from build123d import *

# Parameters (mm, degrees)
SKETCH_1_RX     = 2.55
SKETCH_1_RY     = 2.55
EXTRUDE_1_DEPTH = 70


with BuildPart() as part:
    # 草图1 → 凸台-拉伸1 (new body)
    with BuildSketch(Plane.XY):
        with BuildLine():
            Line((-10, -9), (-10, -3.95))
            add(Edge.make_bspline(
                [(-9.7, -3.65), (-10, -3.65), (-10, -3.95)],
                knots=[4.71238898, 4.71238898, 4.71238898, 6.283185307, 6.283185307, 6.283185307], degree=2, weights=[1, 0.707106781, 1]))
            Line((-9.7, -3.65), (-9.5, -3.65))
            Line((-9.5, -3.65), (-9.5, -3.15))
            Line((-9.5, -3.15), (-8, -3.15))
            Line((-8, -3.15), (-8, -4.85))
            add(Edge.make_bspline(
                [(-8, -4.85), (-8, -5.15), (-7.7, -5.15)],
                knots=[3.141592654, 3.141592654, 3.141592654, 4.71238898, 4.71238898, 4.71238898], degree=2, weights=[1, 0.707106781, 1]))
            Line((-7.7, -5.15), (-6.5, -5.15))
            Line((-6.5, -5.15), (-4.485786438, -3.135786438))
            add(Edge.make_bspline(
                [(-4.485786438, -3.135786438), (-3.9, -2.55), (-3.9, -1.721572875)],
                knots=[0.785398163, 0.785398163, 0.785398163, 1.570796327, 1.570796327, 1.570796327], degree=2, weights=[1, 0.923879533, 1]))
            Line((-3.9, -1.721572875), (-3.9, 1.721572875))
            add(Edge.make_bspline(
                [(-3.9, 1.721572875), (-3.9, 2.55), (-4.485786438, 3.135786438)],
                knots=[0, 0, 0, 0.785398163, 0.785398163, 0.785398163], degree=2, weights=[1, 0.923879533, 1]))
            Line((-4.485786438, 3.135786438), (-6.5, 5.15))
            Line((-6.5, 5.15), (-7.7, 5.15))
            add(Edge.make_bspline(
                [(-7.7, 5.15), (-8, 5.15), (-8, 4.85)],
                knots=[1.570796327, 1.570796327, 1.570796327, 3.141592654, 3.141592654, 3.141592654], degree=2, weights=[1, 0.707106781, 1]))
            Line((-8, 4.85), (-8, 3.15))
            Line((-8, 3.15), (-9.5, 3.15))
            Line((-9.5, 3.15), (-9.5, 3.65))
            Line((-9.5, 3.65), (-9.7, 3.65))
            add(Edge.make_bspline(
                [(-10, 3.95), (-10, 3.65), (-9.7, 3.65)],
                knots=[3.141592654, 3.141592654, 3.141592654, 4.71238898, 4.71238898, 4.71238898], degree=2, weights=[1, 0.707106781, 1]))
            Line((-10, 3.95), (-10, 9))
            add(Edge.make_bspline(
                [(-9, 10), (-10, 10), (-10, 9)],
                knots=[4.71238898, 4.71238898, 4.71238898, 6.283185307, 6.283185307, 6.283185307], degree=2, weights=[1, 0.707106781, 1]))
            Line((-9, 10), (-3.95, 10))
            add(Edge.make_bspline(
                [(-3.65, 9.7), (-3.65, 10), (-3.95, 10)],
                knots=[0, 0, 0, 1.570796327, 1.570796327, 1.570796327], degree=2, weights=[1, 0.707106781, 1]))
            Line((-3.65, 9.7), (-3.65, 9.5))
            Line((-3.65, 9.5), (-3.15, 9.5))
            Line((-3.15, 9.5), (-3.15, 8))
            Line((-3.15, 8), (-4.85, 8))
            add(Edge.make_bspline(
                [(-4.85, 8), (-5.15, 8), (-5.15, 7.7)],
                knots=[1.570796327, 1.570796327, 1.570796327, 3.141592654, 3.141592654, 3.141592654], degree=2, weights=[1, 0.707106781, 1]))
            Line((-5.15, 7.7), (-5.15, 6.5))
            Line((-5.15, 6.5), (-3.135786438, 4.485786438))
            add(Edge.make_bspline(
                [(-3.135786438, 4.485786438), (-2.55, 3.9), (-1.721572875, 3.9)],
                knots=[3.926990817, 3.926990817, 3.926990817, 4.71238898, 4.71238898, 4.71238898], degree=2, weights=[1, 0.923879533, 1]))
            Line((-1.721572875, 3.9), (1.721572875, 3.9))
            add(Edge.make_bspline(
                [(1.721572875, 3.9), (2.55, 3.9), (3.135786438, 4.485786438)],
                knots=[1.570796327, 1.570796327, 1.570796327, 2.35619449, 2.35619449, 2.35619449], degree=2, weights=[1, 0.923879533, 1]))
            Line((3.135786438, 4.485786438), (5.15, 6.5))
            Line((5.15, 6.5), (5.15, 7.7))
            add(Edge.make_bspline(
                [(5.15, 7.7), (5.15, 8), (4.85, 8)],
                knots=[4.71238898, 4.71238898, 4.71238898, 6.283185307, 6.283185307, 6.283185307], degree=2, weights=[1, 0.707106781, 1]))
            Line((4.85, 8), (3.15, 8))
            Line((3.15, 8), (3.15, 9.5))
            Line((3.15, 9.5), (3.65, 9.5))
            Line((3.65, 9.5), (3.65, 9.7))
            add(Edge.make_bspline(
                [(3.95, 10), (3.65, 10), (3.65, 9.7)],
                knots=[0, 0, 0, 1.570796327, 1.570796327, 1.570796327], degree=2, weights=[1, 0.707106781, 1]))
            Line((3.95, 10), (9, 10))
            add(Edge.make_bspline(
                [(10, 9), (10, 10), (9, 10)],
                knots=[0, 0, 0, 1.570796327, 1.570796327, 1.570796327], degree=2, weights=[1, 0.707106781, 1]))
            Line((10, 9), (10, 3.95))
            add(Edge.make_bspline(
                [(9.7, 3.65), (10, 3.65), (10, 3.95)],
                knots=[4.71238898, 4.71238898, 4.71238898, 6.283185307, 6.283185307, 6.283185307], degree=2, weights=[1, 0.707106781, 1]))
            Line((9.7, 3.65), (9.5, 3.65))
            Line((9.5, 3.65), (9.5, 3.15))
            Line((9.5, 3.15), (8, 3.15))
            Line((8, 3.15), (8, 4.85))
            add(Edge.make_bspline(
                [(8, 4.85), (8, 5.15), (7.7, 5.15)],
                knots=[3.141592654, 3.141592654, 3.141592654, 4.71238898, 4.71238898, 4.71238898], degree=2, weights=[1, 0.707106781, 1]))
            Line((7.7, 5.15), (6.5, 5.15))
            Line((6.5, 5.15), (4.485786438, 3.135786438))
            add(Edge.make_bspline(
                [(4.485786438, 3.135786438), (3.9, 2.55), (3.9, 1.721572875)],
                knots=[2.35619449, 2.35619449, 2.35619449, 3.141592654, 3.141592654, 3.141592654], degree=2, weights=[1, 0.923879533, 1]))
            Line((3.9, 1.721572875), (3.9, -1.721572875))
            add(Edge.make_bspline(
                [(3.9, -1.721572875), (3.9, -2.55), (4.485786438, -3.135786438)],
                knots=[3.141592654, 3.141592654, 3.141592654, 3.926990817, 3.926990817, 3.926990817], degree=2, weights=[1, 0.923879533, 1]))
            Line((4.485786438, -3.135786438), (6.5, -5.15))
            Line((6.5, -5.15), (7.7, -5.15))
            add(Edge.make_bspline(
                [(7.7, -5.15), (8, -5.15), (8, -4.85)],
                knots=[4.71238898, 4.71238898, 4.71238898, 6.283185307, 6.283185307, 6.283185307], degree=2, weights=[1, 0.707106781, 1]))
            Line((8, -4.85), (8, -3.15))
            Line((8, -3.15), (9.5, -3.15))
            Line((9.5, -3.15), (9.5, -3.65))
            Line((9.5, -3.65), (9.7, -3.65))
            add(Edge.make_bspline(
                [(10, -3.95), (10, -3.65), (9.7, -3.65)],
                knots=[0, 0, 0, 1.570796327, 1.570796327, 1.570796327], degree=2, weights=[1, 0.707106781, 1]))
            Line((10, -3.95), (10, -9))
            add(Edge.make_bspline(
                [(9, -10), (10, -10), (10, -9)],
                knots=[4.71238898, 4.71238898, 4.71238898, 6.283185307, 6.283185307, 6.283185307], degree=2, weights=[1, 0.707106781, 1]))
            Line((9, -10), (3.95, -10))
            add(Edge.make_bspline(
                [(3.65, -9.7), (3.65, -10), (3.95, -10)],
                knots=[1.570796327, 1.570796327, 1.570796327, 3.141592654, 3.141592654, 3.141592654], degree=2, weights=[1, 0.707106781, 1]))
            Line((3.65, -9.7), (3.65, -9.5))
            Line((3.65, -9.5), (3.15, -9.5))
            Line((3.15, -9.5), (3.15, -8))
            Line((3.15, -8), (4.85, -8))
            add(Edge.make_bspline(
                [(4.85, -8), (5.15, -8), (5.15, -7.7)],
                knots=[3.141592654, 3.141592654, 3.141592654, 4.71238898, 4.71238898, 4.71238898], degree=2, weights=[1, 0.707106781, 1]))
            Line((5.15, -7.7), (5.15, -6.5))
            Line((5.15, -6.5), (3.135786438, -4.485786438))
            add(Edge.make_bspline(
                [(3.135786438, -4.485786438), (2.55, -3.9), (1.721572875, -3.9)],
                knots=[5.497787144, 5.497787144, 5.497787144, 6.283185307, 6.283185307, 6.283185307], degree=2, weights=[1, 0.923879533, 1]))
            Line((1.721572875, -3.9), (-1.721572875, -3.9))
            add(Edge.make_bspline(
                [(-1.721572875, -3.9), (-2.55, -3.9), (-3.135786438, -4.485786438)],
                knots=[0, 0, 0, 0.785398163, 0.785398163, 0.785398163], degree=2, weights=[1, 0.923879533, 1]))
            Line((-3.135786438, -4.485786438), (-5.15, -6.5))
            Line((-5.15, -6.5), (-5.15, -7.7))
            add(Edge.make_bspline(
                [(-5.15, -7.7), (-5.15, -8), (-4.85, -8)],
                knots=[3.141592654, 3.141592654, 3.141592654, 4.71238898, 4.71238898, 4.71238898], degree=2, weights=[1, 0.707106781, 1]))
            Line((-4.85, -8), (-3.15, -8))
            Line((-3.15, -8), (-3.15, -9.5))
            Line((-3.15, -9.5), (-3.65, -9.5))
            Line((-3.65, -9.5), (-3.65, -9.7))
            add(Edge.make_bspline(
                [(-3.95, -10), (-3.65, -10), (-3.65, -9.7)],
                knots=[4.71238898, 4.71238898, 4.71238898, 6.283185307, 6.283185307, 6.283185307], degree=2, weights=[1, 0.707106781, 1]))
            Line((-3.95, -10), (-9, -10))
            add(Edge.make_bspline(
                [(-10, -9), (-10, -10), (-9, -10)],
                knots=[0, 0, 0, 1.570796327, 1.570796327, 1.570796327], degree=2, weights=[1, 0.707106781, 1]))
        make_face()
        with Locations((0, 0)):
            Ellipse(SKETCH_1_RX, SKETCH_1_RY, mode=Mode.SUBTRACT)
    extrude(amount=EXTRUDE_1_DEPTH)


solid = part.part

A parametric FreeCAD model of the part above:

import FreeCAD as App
import Part
import Sketcher
from FreeCAD import Vector

doc = App.newDocument("Part")
body = doc.addObject("PartDesign::Body", "Body")

sketch1 = doc.addObject("Sketcher::SketchObject", "Sketch")
body.addObject(sketch1)
sketch1.AttachmentSupport = (doc.XY_Plane, [""])
sketch1.MapMode = "FlatFace"
sketch1.addGeometry(Part.LineSegment(Vector(-10, -3.95, 0), Vector(-10, -9, 0)), False)
sketch1.addGeometry(Part.BSplineCurve([Vector(-10, -9, 0), Vector(-10, -10, 0), Vector(-9, -10, 0)], [3, 3], [0, 1.570796327], False, 2, [1, 0.707106781, 1], False), False)
sketch1.addGeometry(Part.LineSegment(Vector(-9, -10, 0), Vector(-3.95, -10, 0)), False)
sketch1.addGeometry(Part.BSplineCurve([Vector(-3.95, -10, 0), Vector(-3.65, -10, 0), Vector(-3.65, -9.7, 0)], [3, 3], [4.71238898, 6.283185307], False, 2, [1, 0.707106781, 1], False), False)
sketch1.addGeometry(Part.LineSegment(Vector(-3.65, -9.7, 0), Vector(-3.65, -9.5, 0)), False)
sketch1.addGeometry(Part.LineSegment(Vector(-3.65, -9.5, 0), Vector(-3.15, -9.5, 0)), False)
sketch1.addGeometry(Part.LineSegment(Vector(-3.15, -9.5, 0), Vector(-3.15, -8, 0)), False)
sketch1.addGeometry(Part.LineSegment(Vector(-3.15, -8, 0), Vector(-4.85, -8, 0)), False)
sketch1.addGeometry(Part.BSplineCurve([Vector(-5.15, -7.7, 0), Vector(-5.15, -8, 0), Vector(-4.85, -8, 0)], [3, 3], [3.141592654, 4.71238898], False, 2, [1, 0.707106781, 1], False), False)
sketch1.addGeometry(Part.LineSegment(Vector(-5.15, -7.7, 0), Vector(-5.15, -6.5, 0)), False)
sketch1.addGeometry(Part.LineSegment(Vector(-5.15, -6.5, 0), Vector(-3.135786, -4.485786, 0)), False)
sketch1.addGeometry(Part.BSplineCurve([Vector(-1.721573, -3.9, 0), Vector(-2.55, -3.9, 0), Vector(-3.135786, -4.485786, 0)], [3, 3], [0, 0.785398163], False, 2, [1, 0.923879533, 1], False), False)
sketch1.addGeometry(Part.LineSegment(Vector(-1.721573, -3.9, 0), Vector(1.721573, -3.9, 0)), False)
sketch1.addGeometry(Part.BSplineCurve([Vector(3.135786, -4.485786, 0), Vector(2.55, -3.9, 0), Vector(1.721573, -3.9, 0)], [3, 3], [5.497787144, 6.283185307], False, 2, [1, 0.923879533, 1], False), False)
sketch1.addGeometry(Part.LineSegment(Vector(3.135786, -4.485786, 0), Vector(5.15, -6.5, 0)), False)
sketch1.addGeometry(Part.LineSegment(Vector(5.15, -6.5, 0), Vector(5.15, -7.7, 0)), False)
sketch1.addGeometry(Part.BSplineCurve([Vector(4.85, -8, 0), Vector(5.15, -8, 0), Vector(5.15, -7.7, 0)], [3, 3], [3.141592654, 4.71238898], False, 2, [1, 0.707106781, 1], False), False)
sketch1.addGeometry(Part.LineSegment(Vector(4.85, -8, 0), Vector(3.15, -8, 0)), False)
sketch1.addGeometry(Part.LineSegment(Vector(3.15, -8, 0), Vector(3.15, -9.5, 0)), False)
sketch1.addGeometry(Part.LineSegment(Vector(3.15, -9.5, 0), Vector(3.65, -9.5, 0)), False)
sketch1.addGeometry(Part.LineSegment(Vector(3.65, -9.5, 0), Vector(3.65, -9.7, 0)), False)
sketch1.addGeometry(Part.BSplineCurve([Vector(3.65, -9.7, 0), Vector(3.65, -10, 0), Vector(3.95, -10, 0)], [3, 3], [1.570796327, 3.141592654], False, 2, [1, 0.707106781, 1], False), False)
sketch1.addGeometry(Part.LineSegment(Vector(3.95, -10, 0), Vector(9, -10, 0)), False)
sketch1.addGeometry(Part.BSplineCurve([Vector(9, -10, 0), Vector(10, -10, 0), Vector(10, -9, 0)], [3, 3], [4.71238898, 6.283185307], False, 2, [1, 0.707106781, 1], False), False)
sketch1.addGeometry(Part.LineSegment(Vector(10, -9, 0), Vector(10, -3.95, 0)), False)
sketch1.addGeometry(Part.BSplineCurve([Vector(10, -3.95, 0), Vector(10, -3.65, 0), Vector(9.7, -3.65, 0)], [3, 3], [0, 1.570796327], False, 2, [1, 0.707106781, 1], False), False)
sketch1.addGeometry(Part.LineSegment(Vector(9.7, -3.65, 0), Vector(9.5, -3.65, 0)), False)
sketch1.addGeometry(Part.LineSegment(Vector(9.5, -3.65, 0), Vector(9.5, -3.15, 0)), False)
sketch1.addGeometry(Part.LineSegment(Vector(9.5, -3.15, 0), Vector(8, -3.15, 0)), False)
sketch1.addGeometry(Part.LineSegment(Vector(8, -3.15, 0), Vector(8, -4.85, 0)), False)
sketch1.addGeometry(Part.BSplineCurve([Vector(7.7, -5.15, 0), Vector(8, -5.15, 0), Vector(8, -4.85, 0)], [3, 3], [4.71238898, 6.283185307], False, 2, [1, 0.707106781, 1], False), False)
sketch1.addGeometry(Part.LineSegment(Vector(7.7, -5.15, 0), Vector(6.5, -5.15, 0)), False)
sketch1.addGeometry(Part.LineSegment(Vector(6.5, -5.15, 0), Vector(4.485786, -3.135786, 0)), False)
sketch1.addGeometry(Part.BSplineCurve([Vector(3.9, -1.721573, 0), Vector(3.9, -2.55, 0), Vector(4.485786, -3.135786, 0)], [3, 3], [3.141592654, 3.926990817], False, 2, [1, 0.923879533, 1], False), False)
sketch1.addGeometry(Part.LineSegment(Vector(3.9, -1.721573, 0), Vector(3.9, 1.721573, 0)), False)
sketch1.addGeometry(Part.BSplineCurve([Vector(4.485786, 3.135786, 0), Vector(3.9, 2.55, 0), Vector(3.9, 1.721573, 0)], [3, 3], [2.35619449, 3.141592654], False, 2, [1, 0.923879533, 1], False), False)
sketch1.addGeometry(Part.LineSegment(Vector(4.485786, 3.135786, 0), Vector(6.5, 5.15, 0)), False)
sketch1.addGeometry(Part.LineSegment(Vector(6.5, 5.15, 0), Vector(7.7, 5.15, 0)), False)
sketch1.addGeometry(Part.BSplineCurve([Vector(8, 4.85, 0), Vector(8, 5.15, 0), Vector(7.7, 5.15, 0)], [3, 3], [3.141592654, 4.71238898], False, 2, [1, 0.707106781, 1], False), False)
sketch1.addGeometry(Part.LineSegment(Vector(8, 4.85, 0), Vector(8, 3.15, 0)), False)
sketch1.addGeometry(Part.LineSegment(Vector(8, 3.15, 0), Vector(9.5, 3.15, 0)), False)
sketch1.addGeometry(Part.LineSegment(Vector(9.5, 3.15, 0), Vector(9.5, 3.65, 0)), False)
sketch1.addGeometry(Part.LineSegment(Vector(9.5, 3.65, 0), Vector(9.7, 3.65, 0)), False)
sketch1.addGeometry(Part.BSplineCurve([Vector(9.7, 3.65, 0), Vector(10, 3.65, 0), Vector(10, 3.95, 0)], [3, 3], [4.71238898, 6.283185307], False, 2, [1, 0.707106781, 1], False), False)
sketch1.addGeometry(Part.LineSegment(Vector(10, 3.95, 0), Vector(10, 9, 0)), False)
sketch1.addGeometry(Part.BSplineCurve([Vector(10, 9, 0), Vector(10, 10, 0), Vector(9, 10, 0)], [3, 3], [0, 1.570796327], False, 2, [1, 0.707106781, 1], False), False)
sketch1.addGeometry(Part.LineSegment(Vector(9, 10, 0), Vector(3.95, 10, 0)), False)
sketch1.addGeometry(Part.BSplineCurve([Vector(3.95, 10, 0), Vector(3.65, 10, 0), Vector(3.65, 9.7, 0)], [3, 3], [0, 1.570796327], False, 2, [1, 0.707106781, 1], False), False)
sketch1.addGeometry(Part.LineSegment(Vector(3.65, 9.7, 0), Vector(3.65, 9.5, 0)), False)
sketch1.addGeometry(Part.LineSegment(Vector(3.65, 9.5, 0), Vector(3.15, 9.5, 0)), False)
sketch1.addGeometry(Part.LineSegment(Vector(3.15, 9.5, 0), Vector(3.15, 8, 0)), False)
sketch1.addGeometry(Part.LineSegment(Vector(3.15, 8, 0), Vector(4.85, 8, 0)), False)
sketch1.addGeometry(Part.BSplineCurve([Vector(5.15, 7.7, 0), Vector(5.15, 8, 0), Vector(4.85, 8, 0)], [3, 3], [4.71238898, 6.283185307], False, 2, [1, 0.707106781, 1], False), False)
sketch1.addGeometry(Part.LineSegment(Vector(5.15, 7.7, 0), Vector(5.15, 6.5, 0)), False)
sketch1.addGeometry(Part.LineSegment(Vector(5.15, 6.5, 0), Vector(3.135786, 4.485786, 0)), False)
sketch1.addGeometry(Part.BSplineCurve([Vector(1.721573, 3.9, 0), Vector(2.55, 3.9, 0), Vector(3.135786, 4.485786, 0)], [3, 3], [1.570796327, 2.35619449], False, 2, [1, 0.923879533, 1], False), False)
sketch1.addGeometry(Part.LineSegment(Vector(1.721573, 3.9, 0), Vector(-1.721573, 3.9, 0)), False)
sketch1.addGeometry(Part.BSplineCurve([Vector(-3.135786, 4.485786, 0), Vector(-2.55, 3.9, 0), Vector(-1.721573, 3.9, 0)], [3, 3], [3.926990817, 4.71238898], False, 2, [1, 0.923879533, 1], False), False)
sketch1.addGeometry(Part.LineSegment(Vector(-3.135786, 4.485786, 0), Vector(-5.15, 6.5, 0)), False)
sketch1.addGeometry(Part.LineSegment(Vector(-5.15, 6.5, 0), Vector(-5.15, 7.7, 0)), False)
sketch1.addGeometry(Part.BSplineCurve([Vector(-4.85, 8, 0), Vector(-5.15, 8, 0), Vector(-5.15, 7.7, 0)], [3, 3], [1.570796327, 3.141592654], False, 2, [1, 0.707106781, 1], False), False)
sketch1.addGeometry(Part.LineSegment(Vector(-4.85, 8, 0), Vector(-3.15, 8, 0)), False)
sketch1.addGeometry(Part.LineSegment(Vector(-3.15, 8, 0), Vector(-3.15, 9.5, 0)), False)
sketch1.addGeometry(Part.LineSegment(Vector(-3.15, 9.5, 0), Vector(-3.65, 9.5, 0)), False)
sketch1.addGeometry(Part.LineSegment(Vector(-3.65, 9.5, 0), Vector(-3.65, 9.7, 0)), False)
sketch1.addGeometry(Part.BSplineCurve([Vector(-3.65, 9.7, 0), Vector(-3.65, 10, 0), Vector(-3.95, 10, 0)], [3, 3], [0, 1.570796327], False, 2, [1, 0.707106781, 1], False), False)
sketch1.addGeometry(Part.LineSegment(Vector(-3.95, 10, 0), Vector(-9, 10, 0)), False)
sketch1.addGeometry(Part.BSplineCurve([Vector(-9, 10, 0), Vector(-10, 10, 0), Vector(-10, 9, 0)], [3, 3], [4.71238898, 6.283185307], False, 2, [1, 0.707106781, 1], False), False)
sketch1.addGeometry(Part.LineSegment(Vector(-10, 9, 0), Vector(-10, 3.95, 0)), False)
sketch1.addGeometry(Part.BSplineCurve([Vector(-10, 3.95, 0), Vector(-10, 3.65, 0), Vector(-9.7, 3.65, 0)], [3, 3], [3.141592654, 4.71238898], False, 2, [1, 0.707106781, 1], False), False)
sketch1.addGeometry(Part.LineSegment(Vector(-9.7, 3.65, 0), Vector(-9.5, 3.65, 0)), False)
sketch1.addGeometry(Part.LineSegment(Vector(-9.5, 3.65, 0), Vector(-9.5, 3.15, 0)), False)
sketch1.addGeometry(Part.LineSegment(Vector(-9.5, 3.15, 0), Vector(-8, 3.15, 0)), False)
sketch1.addGeometry(Part.LineSegment(Vector(-8, 3.15, 0), Vector(-8, 4.85, 0)), False)
sketch1.addGeometry(Part.BSplineCurve([Vector(-7.7, 5.15, 0), Vector(-8, 5.15, 0), Vector(-8, 4.85, 0)], [3, 3], [1.570796327, 3.141592654], False, 2, [1, 0.707106781, 1], False), False)
sketch1.addGeometry(Part.LineSegment(Vector(-7.7, 5.15, 0), Vector(-6.5, 5.15, 0)), False)
sketch1.addGeometry(Part.LineSegment(Vector(-6.5, 5.15, 0), Vector(-4.485786, 3.135786, 0)), False)
sketch1.addGeometry(Part.BSplineCurve([Vector(-3.9, 1.721573, 0), Vector(-3.9, 2.55, 0), Vector(-4.485786, 3.135786, 0)], [3, 3], [0, 0.785398163], False, 2, [1, 0.923879533, 1], False), False)
sketch1.addGeometry(Part.LineSegment(Vector(-3.9, 1.721573, 0), Vector(-3.9, -1.721573, 0)), False)
sketch1.addGeometry(Part.BSplineCurve([Vector(-4.485786, -3.135786, 0), Vector(-3.9, -2.55, 0), Vector(-3.9, -1.721573, 0)], [3, 3], [0.785398163, 1.570796327], False, 2, [1, 0.923879533, 1], False), False)
sketch1.addGeometry(Part.LineSegment(Vector(-4.485786, -3.135786, 0), Vector(-6.5, -5.15, 0)), False)
sketch1.addGeometry(Part.LineSegment(Vector(-6.5, -5.15, 0), Vector(-7.7, -5.15, 0)), False)
sketch1.addGeometry(Part.BSplineCurve([Vector(-8, -4.85, 0), Vector(-8, -5.15, 0), Vector(-7.7, -5.15, 0)], [3, 3], [3.141592654, 4.71238898], False, 2, [1, 0.707106781, 1], False), False)
sketch1.addGeometry(Part.LineSegment(Vector(-8, -4.85, 0), Vector(-8, -3.15, 0)), False)
sketch1.addGeometry(Part.LineSegment(Vector(-8, -3.15, 0), Vector(-9.5, -3.15, 0)), False)
sketch1.addGeometry(Part.LineSegment(Vector(-9.5, -3.15, 0), Vector(-9.5, -3.65, 0)), False)
sketch1.addGeometry(Part.LineSegment(Vector(-9.5, -3.65, 0), Vector(-9.7, -3.65, 0)), False)
sketch1.addGeometry(Part.BSplineCurve([Vector(-9.7, -3.65, 0), Vector(-10, -3.65, 0), Vector(-10, -3.95, 0)], [3, 3], [4.71238898, 6.283185307], False, 2, [1, 0.707106781, 1], False), False)
sketch1.addGeometry(Part.Ellipse(Vector(2.55, 0, 0), Vector(0, 2.55, 0), Vector(0, 0, 0)), False)
sketch1.addConstraint(Sketcher.Constraint("Block", 1))
sketch1.addConstraint(Sketcher.Constraint("Block", 3))
sketch1.addConstraint(Sketcher.Constraint("Block", 8))
sketch1.addConstraint(Sketcher.Constraint("Block", 11))
sketch1.addConstraint(Sketcher.Constraint("Block", 13))
sketch1.addConstraint(Sketcher.Constraint("Block", 16))
sketch1.addConstraint(Sketcher.Constraint("Block", 21))
sketch1.addConstraint(Sketcher.Constraint("Block", 23))
sketch1.addConstraint(Sketcher.Constraint("Block", 25))
sketch1.addConstraint(Sketcher.Constraint("Block", 30))
sketch1.addConstraint(Sketcher.Constraint("Block", 33))
sketch1.addConstraint(Sketcher.Constraint("Block", 35))
sketch1.addConstraint(Sketcher.Constraint("Block", 38))
sketch1.addConstraint(Sketcher.Constraint("Block", 43))
sketch1.addConstraint(Sketcher.Constraint("Block", 45))
sketch1.addConstraint(Sketcher.Constraint("Block", 47))
sketch1.addConstraint(Sketcher.Constraint("Block", 52))
sketch1.addConstraint(Sketcher.Constraint("Block", 55))
sketch1.addConstraint(Sketcher.Constraint("Block", 57))
sketch1.addConstraint(Sketcher.Constraint("Block", 60))
sketch1.addConstraint(Sketcher.Constraint("Block", 65))
sketch1.addConstraint(Sketcher.Constraint("Block", 67))
sketch1.addConstraint(Sketcher.Constraint("Block", 69))
sketch1.addConstraint(Sketcher.Constraint("Block", 74))
sketch1.addConstraint(Sketcher.Constraint("Block", 77))
sketch1.addConstraint(Sketcher.Constraint("Block", 79))
sketch1.addConstraint(Sketcher.Constraint("Block", 82))
sketch1.addConstraint(Sketcher.Constraint("Block", 87))
sketch1.addConstraint(Sketcher.Constraint("Block", 88))
sketch1.addConstraint(Sketcher.Constraint("Coincident", 0, 2, 1, 1))
sketch1.addConstraint(Sketcher.Constraint("Coincident", 1, 2, 2, 1))
sketch1.addConstraint(Sketcher.Constraint("Coincident", 2, 2, 3, 1))
sketch1.addConstraint(Sketcher.Constraint("Coincident", 3, 2, 4, 1))
sketch1.addConstraint(Sketcher.Constraint("Coincident", 4, 2, 5, 1))
sketch1.addConstraint(Sketcher.Constraint("Coincident", 5, 2, 6, 1))
sketch1.addConstraint(Sketcher.Constraint("Coincident", 6, 2, 7, 1))
sketch1.addConstraint(Sketcher.Constraint("Coincident", 7, 2, 8, 2))
sketch1.addConstraint(Sketcher.Constraint("Coincident", 8, 1, 9, 1))
sketch1.addConstraint(Sketcher.Constraint("Coincident", 9, 2, 10, 1))
sketch1.addConstraint(Sketcher.Constraint("Coincident", 10, 2, 11, 2))
sketch1.addConstraint(Sketcher.Constraint("Coincident", 11, 1, 12, 1))
sketch1.addConstraint(Sketcher.Constraint("Coincident", 12, 2, 13, 2))
sketch1.addConstraint(Sketcher.Constraint("Coincident", 13, 1, 14, 1))
sketch1.addConstraint(Sketcher.Constraint("Coincident", 14, 2, 15, 1))
sketch1.addConstraint(Sketcher.Constraint("Coincident", 15, 2, 16, 2))
sketch1.addConstraint(Sketcher.Constraint("Coincident", 16, 1, 17, 1))
sketch1.addConstraint(Sketcher.Constraint("Coincident", 17, 2, 18, 1))
sketch1.addConstraint(Sketcher.Constraint("Coincident", 18, 2, 19, 1))
sketch1.addConstraint(Sketcher.Constraint("Coincident", 19, 2, 20, 1))
sketch1.addConstraint(Sketcher.Constraint("Coincident", 20, 2, 21, 1))
sketch1.addConstraint(Sketcher.Constraint("Coincident", 21, 2, 22, 1))
sketch1.addConstraint(Sketcher.Constraint("Coincident", 22, 2, 23, 1))
sketch1.addConstraint(Sketcher.Constraint("Coincident", 23, 2, 24, 1))
sketch1.addConstraint(Sketcher.Constraint("Coincident", 24, 2, 25, 1))
sketch1.addConstraint(Sketcher.Constraint("Coincident", 25, 2, 26, 1))
sketch1.addConstraint(Sketcher.Constraint("Coincident", 26, 2, 27, 1))
sketch1.addConstraint(Sketcher.Constraint("Coincident", 27, 2, 28, 1))
sketch1.addConstraint(Sketcher.Constraint("Coincident", 28, 2, 29, 1))
sketch1.addConstraint(Sketcher.Constraint("Coincident", 29, 2, 30, 2))
sketch1.addConstraint(Sketcher.Constraint("Coincident", 30, 1, 31, 1))
sketch1.addConstraint(Sketcher.Constraint("Coincident", 31, 2, 32, 1))
sketch1.addConstraint(Sketcher.Constraint("Coincident", 32, 2, 33, 2))
sketch1.addConstraint(Sketcher.Constraint("Coincident", 33, 1, 34, 1))
sketch1.addConstraint(Sketcher.Constraint("Coincident", 34, 2, 35, 2))
sketch1.addConstraint(Sketcher.Constraint("Coincident", 35, 1, 36, 1))
sketch1.addConstraint(Sketcher.Constraint("Coincident", 36, 2, 37, 1))
sketch1.addConstraint(Sketcher.Constraint("Coincident", 37, 2, 38, 2))
sketch1.addConstraint(Sketcher.Constraint("Coincident", 38, 1, 39, 1))
sketch1.addConstraint(Sketcher.Constraint("Coincident", 39, 2, 40, 1))
sketch1.addConstraint(Sketcher.Constraint("Coincident", 40, 2, 41, 1))
sketch1.addConstraint(Sketcher.Constraint("Coincident", 41, 2, 42, 1))
sketch1.addConstraint(Sketcher.Constraint("Coincident", 42, 2, 43, 1))
sketch1.addConstraint(Sketcher.Constraint("Coincident", 43, 2, 44, 1))
sketch1.addConstraint(Sketcher.Constraint("Coincident", 44, 2, 45, 1))
sketch1.addConstraint(Sketcher.Constraint("Coincident", 45, 2, 46, 1))
sketch1.addConstraint(Sketcher.Constraint("Coincident", 46, 2, 47, 1))
sketch1.addConstraint(Sketcher.Constraint("Coincident", 47, 2, 48, 1))
sketch1.addConstraint(Sketcher.Constraint("Coincident", 48, 2, 49, 1))
sketch1.addConstraint(Sketcher.Constraint("Coincident", 49, 2, 50, 1))
sketch1.addConstraint(Sketcher.Constraint("Coincident", 50, 2, 51, 1))
sketch1.addConstraint(Sketcher.Constraint("Coincident", 51, 2, 52, 2))
sketch1.addConstraint(Sketcher.Constraint("Coincident", 52, 1, 53, 1))
sketch1.addConstraint(Sketcher.Constraint("Coincident", 53, 2, 54, 1))
sketch1.addConstraint(Sketcher.Constraint("Coincident", 54, 2, 55, 2))
sketch1.addConstraint(Sketcher.Constraint("Coincident", 55, 1, 56, 1))
sketch1.addConstraint(Sketcher.Constraint("Coincident", 56, 2, 57, 2))
sketch1.addConstraint(Sketcher.Constraint("Coincident", 57, 1, 58, 1))
sketch1.addConstraint(Sketcher.Constraint("Coincident", 58, 2, 59, 1))
sketch1.addConstraint(Sketcher.Constraint("Coincident", 59, 2, 60, 2))
sketch1.addConstraint(Sketcher.Constraint("Coincident", 60, 1, 61, 1))
sketch1.addConstraint(Sketcher.Constraint("Coincident", 61, 2, 62, 1))
sketch1.addConstraint(Sketcher.Constraint("Coincident", 62, 2, 63, 1))
sketch1.addConstraint(Sketcher.Constraint("Coincident", 63, 2, 64, 1))
sketch1.addConstraint(Sketcher.Constraint("Coincident", 64, 2, 65, 1))
sketch1.addConstraint(Sketcher.Constraint("Coincident", 65, 2, 66, 1))
sketch1.addConstraint(Sketcher.Constraint("Coincident", 66, 2, 67, 1))
sketch1.addConstraint(Sketcher.Constraint("Coincident", 67, 2, 68, 1))
sketch1.addConstraint(Sketcher.Constraint("Coincident", 68, 2, 69, 1))
sketch1.addConstraint(Sketcher.Constraint("Coincident", 69, 2, 70, 1))
sketch1.addConstraint(Sketcher.Constraint("Coincident", 70, 2, 71, 1))
sketch1.addConstraint(Sketcher.Constraint("Coincident", 71, 2, 72, 1))
sketch1.addConstraint(Sketcher.Constraint("Coincident", 72, 2, 73, 1))
sketch1.addConstraint(Sketcher.Constraint("Coincident", 73, 2, 74, 2))
sketch1.addConstraint(Sketcher.Constraint("Coincident", 74, 1, 75, 1))
sketch1.addConstraint(Sketcher.Constraint("Coincident", 75, 2, 76, 1))
sketch1.addConstraint(Sketcher.Constraint("Coincident", 76, 2, 77, 2))
sketch1.addConstraint(Sketcher.Constraint("Coincident", 77, 1, 78, 1))
sketch1.addConstraint(Sketcher.Constraint("Coincident", 78, 2, 79, 2))
sketch1.addConstraint(Sketcher.Constraint("Coincident", 79, 1, 80, 1))
sketch1.addConstraint(Sketcher.Constraint("Coincident", 80, 2, 81, 1))
sketch1.addConstraint(Sketcher.Constraint("Coincident", 81, 2, 82, 2))
sketch1.addConstraint(Sketcher.Constraint("Coincident", 82, 1, 83, 1))
sketch1.addConstraint(Sketcher.Constraint("Coincident", 83, 2, 84, 1))
sketch1.addConstraint(Sketcher.Constraint("Coincident", 84, 2, 85, 1))
sketch1.addConstraint(Sketcher.Constraint("Coincident", 85, 2, 86, 1))
sketch1.addConstraint(Sketcher.Constraint("Coincident", 86, 2, 87, 1))
sketch1.addConstraint(Sketcher.Constraint("Coincident", 87, 2, 0, 1))
sketch1.addConstraint(Sketcher.Constraint("Vertical", 4))
sketch1.addConstraint(Sketcher.Constraint("Horizontal", 5))
sketch1.addConstraint(Sketcher.Constraint("Vertical", 6))
sketch1.addConstraint(Sketcher.Constraint("Horizontal", 7))
sketch1.addConstraint(Sketcher.Constraint("Vertical", 9))
sketch1.addConstraint(Sketcher.Constraint("Vertical", 15))
sketch1.addConstraint(Sketcher.Constraint("Horizontal", 17))
sketch1.addConstraint(Sketcher.Constraint("Vertical", 18))
sketch1.addConstraint(Sketcher.Constraint("Horizontal", 19))
sketch1.addConstraint(Sketcher.Constraint("Vertical", 20))
sketch1.addConstraint(Sketcher.Constraint("Horizontal", 26))
sketch1.addConstraint(Sketcher.Constraint("Vertical", 27))
sketch1.addConstraint(Sketcher.Constraint("Horizontal", 28))
sketch1.addConstraint(Sketcher.Constraint("Vertical", 29))
sketch1.addConstraint(Sketcher.Constraint("Horizontal", 31))
sketch1.addConstraint(Sketcher.Constraint("Horizontal", 37))
sketch1.addConstraint(Sketcher.Constraint("Vertical", 39))
sketch1.addConstraint(Sketcher.Constraint("Horizontal", 40))
sketch1.addConstraint(Sketcher.Constraint("Vertical", 41))
sketch1.addConstraint(Sketcher.Constraint("Horizontal", 42))
sketch1.addConstraint(Sketcher.Constraint("Vertical", 48))
sketch1.addConstraint(Sketcher.Constraint("Horizontal", 49))
sketch1.addConstraint(Sketcher.Constraint("Vertical", 50))
sketch1.addConstraint(Sketcher.Constraint("Horizontal", 51))
sketch1.addConstraint(Sketcher.Constraint("Vertical", 53))
sketch1.addConstraint(Sketcher.Constraint("Vertical", 59))
sketch1.addConstraint(Sketcher.Constraint("Horizontal", 61))
sketch1.addConstraint(Sketcher.Constraint("Vertical", 62))
sketch1.addConstraint(Sketcher.Constraint("Horizontal", 63))
sketch1.addConstraint(Sketcher.Constraint("Vertical", 64))
sketch1.addConstraint(Sketcher.Constraint("Horizontal", 70))
sketch1.addConstraint(Sketcher.Constraint("Vertical", 71))
sketch1.addConstraint(Sketcher.Constraint("Horizontal", 72))
sketch1.addConstraint(Sketcher.Constraint("Vertical", 73))
sketch1.addConstraint(Sketcher.Constraint("Horizontal", 75))
sketch1.addConstraint(Sketcher.Constraint("Horizontal", 81))
sketch1.addConstraint(Sketcher.Constraint("Vertical", 83))
sketch1.addConstraint(Sketcher.Constraint("Horizontal", 84))
sketch1.addConstraint(Sketcher.Constraint("Vertical", 85))
sketch1.addConstraint(Sketcher.Constraint("Horizontal", 86))
sketch1.addConstraint(Sketcher.Constraint("DistanceX", 5, 1, 5, 2, 0.5))
sketch1.addConstraint(Sketcher.Constraint("DistanceX", 17, 2, 17, 1, 1.7))
sketch1.addConstraint(Sketcher.Constraint("DistanceX", 26, 2, 26, 1, 0.2))
sketch1.addConstraint(Sketcher.Constraint("DistanceX", 31, 2, 31, 1, 1.2))
sketch1.addConstraint(Sketcher.Constraint("DistanceX", 37, 1, 37, 2, 1.2))
sketch1.addConstraint(Sketcher.Constraint("DistanceX", 40, 1, 40, 2, 1.5))
sketch1.addConstraint(Sketcher.Constraint("DistanceX", 49, 2, 49, 1, 0.5))
sketch1.addConstraint(Sketcher.Constraint("DistanceX", 61, 1, 61, 2, 1.7))
sketch1.addConstraint(Sketcher.Constraint("DistanceX", 70, 1, 70, 2, 0.2))
sketch1.addConstraint(Sketcher.Constraint("DistanceX", 75, 1, 75, 2, 1.2))
sketch1.addConstraint(Sketcher.Constraint("DistanceX", 81, 2, 81, 1, 1.2))
sketch1.addConstraint(Sketcher.Constraint("DistanceX", 84, 2, 84, 1, 1.5))
sketch1.addConstraint(Sketcher.Constraint("DistanceY", 4, 1, 4, 2, 0.2))
sketch1.addConstraint(Sketcher.Constraint("DistanceY", 9, 1, 9, 2, 1.2))
sketch1.addConstraint(Sketcher.Constraint("DistanceY", 15, 2, 15, 1, 1.2))
sketch1.addConstraint(Sketcher.Constraint("DistanceY", 18, 2, 18, 1, 1.5))
sketch1.addConstraint(Sketcher.Constraint("DistanceY", 27, 1, 27, 2, 0.5))
sketch1.addConstraint(Sketcher.Constraint("DistanceY", 39, 2, 39, 1, 1.7))
sketch1.addConstraint(Sketcher.Constraint("DistanceY", 48, 2, 48, 1, 0.2))
sketch1.addConstraint(Sketcher.Constraint("DistanceY", 53, 2, 53, 1, 1.2))
sketch1.addConstraint(Sketcher.Constraint("DistanceY", 59, 1, 59, 2, 1.2))
sketch1.addConstraint(Sketcher.Constraint("DistanceY", 62, 1, 62, 2, 1.5))
sketch1.addConstraint(Sketcher.Constraint("DistanceY", 71, 2, 71, 1, 0.5))
sketch1.addConstraint(Sketcher.Constraint("DistanceY", 83, 1, 83, 2, 1.7))
pad1 = doc.addObject("PartDesign::Pad", "Pad")
body.addObject(pad1)
pad1.Profile = sketch1
pad1.Length = 70

doc.recompute()
